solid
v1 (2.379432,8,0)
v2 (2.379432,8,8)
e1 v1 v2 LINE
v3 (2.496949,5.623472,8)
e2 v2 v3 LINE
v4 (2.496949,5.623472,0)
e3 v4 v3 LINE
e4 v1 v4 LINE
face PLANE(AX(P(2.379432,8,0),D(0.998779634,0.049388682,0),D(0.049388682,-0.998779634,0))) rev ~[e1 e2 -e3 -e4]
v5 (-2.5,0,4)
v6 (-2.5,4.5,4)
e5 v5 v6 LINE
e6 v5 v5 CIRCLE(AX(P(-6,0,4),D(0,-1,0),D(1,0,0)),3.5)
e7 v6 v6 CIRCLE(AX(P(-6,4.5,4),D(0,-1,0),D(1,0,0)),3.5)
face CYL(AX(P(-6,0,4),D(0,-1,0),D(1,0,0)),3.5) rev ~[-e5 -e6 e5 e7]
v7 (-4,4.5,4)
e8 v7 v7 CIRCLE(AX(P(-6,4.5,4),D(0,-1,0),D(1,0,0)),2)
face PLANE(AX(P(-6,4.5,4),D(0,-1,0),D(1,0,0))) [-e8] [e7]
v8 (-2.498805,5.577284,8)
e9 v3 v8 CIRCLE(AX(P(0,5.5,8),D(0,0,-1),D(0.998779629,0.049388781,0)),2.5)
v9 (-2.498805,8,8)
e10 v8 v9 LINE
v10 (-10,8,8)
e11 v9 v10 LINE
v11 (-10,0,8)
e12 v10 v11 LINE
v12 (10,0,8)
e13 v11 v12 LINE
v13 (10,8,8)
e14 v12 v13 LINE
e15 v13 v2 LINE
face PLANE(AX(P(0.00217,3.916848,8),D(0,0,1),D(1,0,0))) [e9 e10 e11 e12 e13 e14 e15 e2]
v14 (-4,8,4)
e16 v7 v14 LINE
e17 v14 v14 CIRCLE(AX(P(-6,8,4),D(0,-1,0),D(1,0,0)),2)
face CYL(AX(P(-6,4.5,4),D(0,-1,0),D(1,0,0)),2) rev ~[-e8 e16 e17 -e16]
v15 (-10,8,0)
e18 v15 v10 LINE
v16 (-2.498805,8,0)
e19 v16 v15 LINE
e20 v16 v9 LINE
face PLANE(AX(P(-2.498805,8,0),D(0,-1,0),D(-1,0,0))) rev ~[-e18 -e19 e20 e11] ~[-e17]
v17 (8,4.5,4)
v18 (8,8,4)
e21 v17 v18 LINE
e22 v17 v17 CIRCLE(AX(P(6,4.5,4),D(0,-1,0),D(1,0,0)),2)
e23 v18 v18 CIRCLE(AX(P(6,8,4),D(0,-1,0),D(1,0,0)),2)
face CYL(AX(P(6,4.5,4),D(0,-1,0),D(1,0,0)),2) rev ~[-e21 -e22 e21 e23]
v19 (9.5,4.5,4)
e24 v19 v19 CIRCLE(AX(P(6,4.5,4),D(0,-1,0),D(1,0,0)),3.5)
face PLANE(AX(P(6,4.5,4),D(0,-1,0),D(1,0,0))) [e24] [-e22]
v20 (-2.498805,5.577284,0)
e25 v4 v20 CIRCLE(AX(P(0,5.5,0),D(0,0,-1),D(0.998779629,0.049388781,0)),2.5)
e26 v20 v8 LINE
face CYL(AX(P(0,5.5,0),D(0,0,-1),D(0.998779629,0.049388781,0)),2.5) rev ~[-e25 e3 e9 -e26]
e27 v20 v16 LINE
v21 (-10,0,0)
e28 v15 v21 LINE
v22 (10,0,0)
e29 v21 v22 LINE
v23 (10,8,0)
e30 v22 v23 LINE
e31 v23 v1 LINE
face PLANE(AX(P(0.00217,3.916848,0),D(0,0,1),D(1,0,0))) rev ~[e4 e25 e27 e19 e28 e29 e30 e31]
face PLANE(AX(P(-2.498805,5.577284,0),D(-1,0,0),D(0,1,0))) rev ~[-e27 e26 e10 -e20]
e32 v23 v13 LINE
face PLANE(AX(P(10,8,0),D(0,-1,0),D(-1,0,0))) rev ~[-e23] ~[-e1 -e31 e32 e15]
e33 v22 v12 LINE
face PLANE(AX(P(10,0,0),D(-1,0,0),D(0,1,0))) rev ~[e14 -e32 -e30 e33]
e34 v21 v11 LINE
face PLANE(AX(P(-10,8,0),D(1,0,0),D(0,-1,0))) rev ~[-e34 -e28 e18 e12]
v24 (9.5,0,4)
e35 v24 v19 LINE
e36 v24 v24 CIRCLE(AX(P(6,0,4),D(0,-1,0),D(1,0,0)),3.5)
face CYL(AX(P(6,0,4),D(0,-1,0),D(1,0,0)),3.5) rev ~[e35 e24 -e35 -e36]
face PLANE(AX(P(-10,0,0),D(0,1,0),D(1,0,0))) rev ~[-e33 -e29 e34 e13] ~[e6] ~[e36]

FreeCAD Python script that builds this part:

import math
import FreeCAD as App
import Part
import Sketcher
from FreeCAD import Vector
Q = App.Units.Quantity

doc = App.newDocument("Part")
body = doc.addObject("PartDesign::Body", "Body")

sketch1 = body.newObject("Sketcher::SketchObject", "Sketch")
sketch1.AttachmentSupport = (doc.getObject("XY_Plane"), [""])
sketch1.MapMode = "FlatFace"
sketch1.addGeometry([
    Part.LineSegment(Vector(-2.498805, 8, 0), Vector(-10, 8, 0)),
    Part.LineSegment(Vector(-10, 8, 0), Vector(-10, 0, 0)),
    Part.LineSegment(Vector(-10, 0, 0), Vector(10, 0, 0)),
    Part.LineSegment(Vector(10, 0, 0), Vector(10, 8, 0)),
    Part.LineSegment(Vector(10, 8, 0), Vector(2.379432, 8, 0)),
    Part.LineSegment(Vector(2.379432, 8, 0), Vector(2.496949, 5.623472, 0)),
    Part.ArcOfCircle(Part.Circle(Vector(0, 5.5, 0), Vector(0, 0, 1), 2.5), math.radians(178.2285), math.radians(362.83092)),
    Part.LineSegment(Vector(-2.498805, 5.577284, 0), Vector(-2.498805, 8, 0)),
], False)
sketch1.addConstraint([
    Sketcher.Constraint("Coincident", 0, 2, 1, 1),
    Sketcher.Constraint("Coincident", 1, 2, 2, 1),
    Sketcher.Constraint("Coincident", 2, 2, 3, 1),
    Sketcher.Constraint("Coincident", 3, 2, 4, 1),
    Sketcher.Constraint("Coincident", 4, 2, 5, 1),
    Sketcher.Constraint("Tangent", 5, 2, 6, 2),
    Sketcher.Constraint("Coincident", 6, 1, 7, 1),
    Sketcher.Constraint("Coincident", 7, 2, 0, 1),
    Sketcher.Constraint("Horizontal", 0),
    Sketcher.Constraint("Vertical", 1),
    Sketcher.Constraint("Horizontal", 2),
    Sketcher.Constraint("Vertical", 3),
    Sketcher.Constraint("Horizontal", 4),
    Sketcher.Constraint("Vertical", 7),
    Sketcher.Constraint("Symmetric", 1, 2, 2, 2, -1, 1),
    Sketcher.Constraint("PointOnObject", 6, 3, -2),
    Sketcher.Constraint("Horizontal", 0, 2, 3, 2),
    Sketcher.Constraint("Radius", 6, Q("2.5 mm")),
    Sketcher.Constraint("DistanceX", 2, 1, 2, 2, Q("20 mm")),
    Sketcher.Constraint("DistanceY", 1, 2, 1, 1, Q("8 mm")),
    Sketcher.Constraint("DistanceY", -1, 1, 6, 3, Q("5.5 mm")),
    Sketcher.Constraint("DistanceX", 4, 2, 4, 1, Q("7.620568 mm")),
    Sketcher.Constraint("DistanceX", 0, 2, 0, 1, Q("7.501195 mm")),
])
pad1 = body.newObject("PartDesign::Pad", "Pad")
pad1.Profile = sketch1
pad1.Length = 8

sketch2 = body.newObject("Sketcher::SketchObject", "Sketch001")
sketch2.AttachmentSupport = (doc.getObject("XZ_Plane"), [""])
sketch2.MapMode = "FlatFace"
sketch2.addGeometry([
    Part.Circle(Vector(6, 4, 0), Vector(0, 0, 1), 3.5),
    Part.Circle(Vector(-6, 4, 0), Vector(0, 0, 1), 3.5),
], False)
sketch2.addConstraint([
    Sketcher.Constraint("Equal", 0, 1),
    Sketcher.Constraint("Symmetric", 0, 3, 1, 3, -2),
    Sketcher.Constraint("Diameter", 0, Q("7 mm")),
    Sketcher.Constraint("DistanceX", -1, 1, 0, 3, Q("6 mm")),
    Sketcher.Constraint("DistanceY", -1, 1, 0, 3, Q("4 mm")),
])
pocket1 = body.newObject("PartDesign::Pocket", "Pocket")
pocket1.Profile = sketch2
pocket1.Length = 4.5

sketch3 = body.newObject("Sketcher::SketchObject", "Sketch002")
sketch3.AttachmentSupport = (doc.getObject("XZ_Plane"), [""])
sketch3.MapMode = "FlatFace"
sketch3.AttachmentOffset = App.Placement(Vector(0, 0, -4.5), App.Rotation())
sketch3.addGeometry([
    Part.Circle(Vector(-6, 4, 0), Vector(0, 0, 1), 2),
    Part.Circle(Vector(6, 4, 0), Vector(0, 0, 1), 2),
], False)
sketch3.addConstraint([
    Sketcher.Constraint("Equal", 0, 1),
    Sketcher.Constraint("Symmetric", 0, 3, 1, 3, -2),
    Sketcher.Constraint("Diameter", 0, Q("4 mm")),
    Sketcher.Constraint("DistanceX", 0, 3, -1, 1, Q("6 mm")),
    Sketcher.Constraint("DistanceY", -1, 1, 0, 3, Q("4 mm")),
])
pocket2 = body.newObject("PartDesign::Pocket", "Pocket001")
pocket2.Profile = sketch3
pocket2.Length = 25

doc.recompute()
